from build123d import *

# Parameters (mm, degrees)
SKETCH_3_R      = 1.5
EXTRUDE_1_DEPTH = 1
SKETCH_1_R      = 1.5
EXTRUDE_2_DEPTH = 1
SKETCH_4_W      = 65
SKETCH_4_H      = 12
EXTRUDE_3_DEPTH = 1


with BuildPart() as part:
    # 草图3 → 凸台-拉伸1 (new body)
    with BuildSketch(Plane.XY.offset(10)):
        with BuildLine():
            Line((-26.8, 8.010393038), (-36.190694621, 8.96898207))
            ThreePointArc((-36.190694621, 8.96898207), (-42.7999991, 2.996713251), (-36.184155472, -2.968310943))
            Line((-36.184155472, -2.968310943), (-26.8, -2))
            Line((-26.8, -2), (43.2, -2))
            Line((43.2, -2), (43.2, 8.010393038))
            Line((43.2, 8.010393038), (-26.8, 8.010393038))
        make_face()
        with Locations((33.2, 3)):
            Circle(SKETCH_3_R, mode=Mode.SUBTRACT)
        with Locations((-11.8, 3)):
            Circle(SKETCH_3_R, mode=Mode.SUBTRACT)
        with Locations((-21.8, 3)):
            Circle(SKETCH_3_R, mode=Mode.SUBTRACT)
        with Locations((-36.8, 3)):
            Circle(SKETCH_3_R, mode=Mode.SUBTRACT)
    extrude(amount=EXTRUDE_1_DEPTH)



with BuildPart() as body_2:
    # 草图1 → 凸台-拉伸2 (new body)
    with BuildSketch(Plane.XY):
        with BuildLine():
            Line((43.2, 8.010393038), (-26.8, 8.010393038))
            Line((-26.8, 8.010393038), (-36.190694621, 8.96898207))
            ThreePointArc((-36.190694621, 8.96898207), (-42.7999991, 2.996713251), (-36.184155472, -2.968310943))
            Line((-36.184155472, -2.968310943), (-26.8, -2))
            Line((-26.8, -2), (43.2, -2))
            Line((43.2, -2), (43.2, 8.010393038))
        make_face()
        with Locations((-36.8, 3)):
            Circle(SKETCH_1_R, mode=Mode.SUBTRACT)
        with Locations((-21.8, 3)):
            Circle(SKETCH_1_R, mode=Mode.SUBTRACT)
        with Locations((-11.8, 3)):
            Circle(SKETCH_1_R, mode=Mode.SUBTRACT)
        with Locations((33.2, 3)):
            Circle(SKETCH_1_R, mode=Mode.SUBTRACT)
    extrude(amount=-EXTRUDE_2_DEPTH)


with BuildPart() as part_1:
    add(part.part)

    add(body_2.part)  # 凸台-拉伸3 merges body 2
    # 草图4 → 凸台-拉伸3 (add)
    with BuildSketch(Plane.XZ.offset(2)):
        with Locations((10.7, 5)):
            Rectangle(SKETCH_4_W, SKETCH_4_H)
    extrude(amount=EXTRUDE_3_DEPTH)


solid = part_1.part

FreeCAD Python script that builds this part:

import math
import FreeCAD as App
import Part
import Sketcher
from FreeCAD import Vector
Q = App.Units.Quantity

doc = App.newDocument("Part")
body = doc.addObject("PartDesign::Body", "Body")

sketch1 = doc.addObject("Sketcher::SketchObject", "Sketch")
body.addObject(sketch1)
sketch1.AttachmentSupport = (doc.XY_Plane, [""])
sketch1.MapMode = "FlatFace"
sketch1.AttachmentOffset = App.Placement(Vector(0, 0, 10), App.Rotation())
sketch1.addGeometry([
    Part.LineSegment(Vector(-26.8, 8.010393, 0), Vector(-36.190695, 8.968982, 0)),
    Part.ArcOfCircle(Part.Circle(Vector(-36.8, 3, 0), Vector(0, 0, 1), 6), math.radians(84.171515), math.radians(275.891257)),
    Part.LineSegment(Vector(-36.184155, -2.968311, 0), Vector(-26.8, -2, 0)),
    Part.LineSegment(Vector(-26.8, -2, 0), Vector(43.2, -2, 0)),
    Part.LineSegment(Vector(43.2, -2, 0), Vector(43.2, 8.010393, 0)),
    Part.LineSegment(Vector(43.2, 8.010393, 0), Vector(-26.8, 8.010393, 0)),
    Part.Circle(Vector(-36.8, 3, 0), Vector(0, 0, 1), 1.5),
    Part.Circle(Vector(-21.8, 3, 0), Vector(0, 0, 1), 1.5),
    Part.Circle(Vector(-11.8, 3, 0), Vector(0, 0, 1), 1.5),
    Part.Circle(Vector(33.2, 3, 0), Vector(0, 0, 1), 1.5),
], False)
sketch1.addConstraint([
    Sketcher.Constraint("Tangent", 0, 2, 1, 1),
    Sketcher.Constraint("Tangent", 1, 2, 2, 1),
    Sketcher.Constraint("Coincident", 2, 2, 3, 1),
    Sketcher.Constraint("Coincident", 3, 2, 4, 1),
    Sketcher.Constraint("Coincident", 4, 2, 5, 1),
    Sketcher.Constraint("Coincident", 5, 2, 0, 1),
    Sketcher.Constraint("Horizontal", 3),
    Sketcher.Constraint("Vertical", 4),
    Sketcher.Constraint("Horizontal", 5),
    Sketcher.Constraint("Coincident", 6, 3, 1, 3),
    Sketcher.Constraint("Equal", 6, 7),
    Sketcher.Constraint("Equal", 7, 8),
    Sketcher.Constraint("Equal", 8, 9),
    Sketcher.Constraint("Horizontal", 6, 3, 7, 3),
    Sketcher.Constraint("Horizontal", 7, 3, 8, 3),
    Sketcher.Constraint("Horizontal", 8, 3, 9, 3),
    Sketcher.Constraint("Vertical", 2, 2, 5, 2),
    Sketcher.Constraint("Diameter", 6, Q("3 mm")),
    Sketcher.Constraint("Radius", 1, Q("6 mm")),
    Sketcher.Constraint("DistanceX", 3, 1, 3, 2, Q("70 mm")),
    Sketcher.Constraint("DistanceY", -1, 1, 1, 3, Q("3 mm")),
    Sketcher.Constraint("DistanceY", 2, 2, -1, 1, Q("2 mm")),
    Sketcher.Constraint("DistanceX", 6, 3, 7, 3, Q("15 mm")),
    Sketcher.Constraint("DistanceX", 7, 3, 8, 3, Q("10 mm")),
    Sketcher.Constraint("DistanceX", 8, 3, 9, 3, Q("45 mm")),
    Sketcher.Constraint("DistanceX", 2, 2, 7, 3, Q("5 mm")),
    Sketcher.Constraint("DistanceX", 1, 3, -1, 1, Q("36.8 mm")),
    Sketcher.Constraint("DistanceY", 4, 1, 4, 2, Q("10.010393 mm")),
])
pad1 = doc.addObject("PartDesign::Pad", "Pad")
body.addObject(pad1)
pad1.Profile = sketch1
pad1.Length = 1
body2 = doc.addObject("PartDesign::Body", "Body001")

sketch2 = doc.addObject("Sketcher::SketchObject", "Sketch001")
body2.addObject(sketch2)
sketch2.AttachmentSupport = (doc.getObject("XY_Plane001"), [""])
sketch2.MapMode = "FlatFace"
sketch2.addGeometry([
    Part.LineSegment(Vector(43.2, 8.010393, 0), Vector(-26.8, 8.010393, 0)),
    Part.LineSegment(Vector(-26.8, 8.010393, 0), Vector(-36.190695, 8.968982, 0)),
    Part.ArcOfCircle(Part.Circle(Vector(-36.8, 3, 0), Vector(0, 0, 1), 6), math.radians(84.171515), math.radians(275.891257)),
    Part.LineSegment(Vector(-36.184155, -2.968311, 0), Vector(-26.8, -2, 0)),
    Part.LineSegment(Vector(-26.8, -2, 0), Vector(43.2, -2, 0)),
    Part.LineSegment(Vector(43.2, -2, 0), Vector(43.2, 8.010393, 0)),
    Part.Circle(Vector(-36.8, 3, 0), Vector(0, 0, 1), 1.5),
    Part.Circle(Vector(-21.8, 3, 0), Vector(0, 0, 1), 1.5),
    Part.Circle(Vector(-11.8, 3, 0), Vector(0, 0, 1), 1.5),
    Part.Circle(Vector(33.2, 3, 0), Vector(0, 0, 1), 1.5),
], False)
sketch2.addConstraint([
    Sketcher.Constraint("Coincident", 0, 2, 1, 1),
    Sketcher.Constraint("Tangent", 1, 2, 2, 1),
    Sketcher.Constraint("Tangent", 2, 2, 3, 1),
    Sketcher.Constraint("Coincident", 3, 2, 4, 1),
    Sketcher.Constraint("Coincident", 4, 2, 5, 1),
    Sketcher.Constraint("Coincident", 5, 2, 0, 1),
    Sketcher.Constraint("Horizontal", 0),
    Sketcher.Constraint("Horizontal", 4),
    Sketcher.Constraint("Vertical", 5),
    Sketcher.Constraint("Coincident", 6, 3, 2, 3),
    Sketcher.Constraint("Equal", 6, 7),
    Sketcher.Constraint("Equal", 7, 8),
    Sketcher.Constraint("Equal", 8, 9),
    Sketcher.Constraint("Horizontal", 6, 3, 7, 3),
    Sketcher.Constraint("Horizontal", 7, 3, 8, 3),
    Sketcher.Constraint("Horizontal", 8, 3, 9, 3),
    Sketcher.Constraint("Vertical", 0, 2, 3, 2),
    Sketcher.Constraint("Diameter", 6, Q("3 mm")),
    Sketcher.Constraint("Radius", 2, Q("6 mm")),
    Sketcher.Constraint("DistanceX", 0, 2, 0, 1, Q("70 mm")),
    Sketcher.Constraint("DistanceY", -1, 1, 2, 3, Q("3 mm")),
    Sketcher.Constraint("DistanceY", 3, 2, -1, 1, Q("2 mm")),
    Sketcher.Constraint("DistanceX", 6, 3, 7, 3, Q("15 mm")),
    Sketcher.Constraint("DistanceX", 7, 3, 8, 3, Q("10 mm")),
    Sketcher.Constraint("DistanceX", 8, 3, 9, 3, Q("45 mm")),
    Sketcher.Constraint("DistanceX", 0, 2, 7, 3, Q("5 mm")),
    Sketcher.Constraint("DistanceX", 2, 3, -1, 1, Q("36.8 mm")),
    Sketcher.Constraint("DistanceY", 5, 1, 5, 2, Q("10.010393 mm")),
])
pad2 = doc.addObject("PartDesign::Pad", "Pad001")
body2.addObject(pad2)
pad2.Profile = sketch2
pad2.Length = 1
pad2.Reversed = True
body.AllowCompound = True
doc.recompute()

boolean = doc.addObject("PartDesign::Boolean", "Boolean")
body.addObject(boolean)
boolean.Type = "Fuse"
boolean.addObjects([body2])

sketch3 = doc.addObject("Sketcher::SketchObject", "Sketch002")
body.addObject(sketch3)
sketch3.AttachmentSupport = (doc.XZ_Plane, [""])
sketch3.MapMode = "FlatFace"
sketch3.AttachmentOffset = App.Placement(Vector(0, 0, 2), App.Rotation())
sketch3.addGeometry([
    Part.LineSegment(Vector(-21.8, 11, 0), Vector(-21.8, -1, 0)),
    Part.LineSegment(Vector(-21.8, -1, 0), Vector(43.2, -1, 0)),
    Part.LineSegment(Vector(43.2, -1, 0), Vector(43.2, 11, 0)),
    Part.LineSegment(Vector(43.2, 11, 0), Vector(-21.8, 11, 0)),
], False)
sketch3.addConstraint([
    Sketcher.Constraint("Coincident", 0, 2, 1, 1),
    Sketcher.Constraint("Coincident", 1, 2, 2, 1),
    Sketcher.Constraint("Coincident", 2, 2, 3, 1),
    Sketcher.Constraint("Coincident", 3, 2, 0, 1),
    Sketcher.Constraint("Vertical", 0),
    Sketcher.Constraint("Horizontal", 1),
    Sketcher.Constraint("Vertical", 2),
    Sketcher.Constraint("Horizontal", 3),
    Sketcher.Constraint("DistanceX", 1, 1, 1, 2, Q("65 mm")),
    Sketcher.Constraint("DistanceY", 0, 2, 0, 1, Q("12 mm")),
    Sketcher.Constraint("DistanceY", 0, 2, -1, 1, Q("1 mm")),
    Sketcher.Constraint("DistanceX", 0, 2, -1, 1, Q("21.8 mm")),
])
pad3 = doc.addObject("PartDesign::Pad", "Pad002")
body.addObject(pad3)
pad3.Profile = sketch3
pad3.Length = 1

doc.recompute()
